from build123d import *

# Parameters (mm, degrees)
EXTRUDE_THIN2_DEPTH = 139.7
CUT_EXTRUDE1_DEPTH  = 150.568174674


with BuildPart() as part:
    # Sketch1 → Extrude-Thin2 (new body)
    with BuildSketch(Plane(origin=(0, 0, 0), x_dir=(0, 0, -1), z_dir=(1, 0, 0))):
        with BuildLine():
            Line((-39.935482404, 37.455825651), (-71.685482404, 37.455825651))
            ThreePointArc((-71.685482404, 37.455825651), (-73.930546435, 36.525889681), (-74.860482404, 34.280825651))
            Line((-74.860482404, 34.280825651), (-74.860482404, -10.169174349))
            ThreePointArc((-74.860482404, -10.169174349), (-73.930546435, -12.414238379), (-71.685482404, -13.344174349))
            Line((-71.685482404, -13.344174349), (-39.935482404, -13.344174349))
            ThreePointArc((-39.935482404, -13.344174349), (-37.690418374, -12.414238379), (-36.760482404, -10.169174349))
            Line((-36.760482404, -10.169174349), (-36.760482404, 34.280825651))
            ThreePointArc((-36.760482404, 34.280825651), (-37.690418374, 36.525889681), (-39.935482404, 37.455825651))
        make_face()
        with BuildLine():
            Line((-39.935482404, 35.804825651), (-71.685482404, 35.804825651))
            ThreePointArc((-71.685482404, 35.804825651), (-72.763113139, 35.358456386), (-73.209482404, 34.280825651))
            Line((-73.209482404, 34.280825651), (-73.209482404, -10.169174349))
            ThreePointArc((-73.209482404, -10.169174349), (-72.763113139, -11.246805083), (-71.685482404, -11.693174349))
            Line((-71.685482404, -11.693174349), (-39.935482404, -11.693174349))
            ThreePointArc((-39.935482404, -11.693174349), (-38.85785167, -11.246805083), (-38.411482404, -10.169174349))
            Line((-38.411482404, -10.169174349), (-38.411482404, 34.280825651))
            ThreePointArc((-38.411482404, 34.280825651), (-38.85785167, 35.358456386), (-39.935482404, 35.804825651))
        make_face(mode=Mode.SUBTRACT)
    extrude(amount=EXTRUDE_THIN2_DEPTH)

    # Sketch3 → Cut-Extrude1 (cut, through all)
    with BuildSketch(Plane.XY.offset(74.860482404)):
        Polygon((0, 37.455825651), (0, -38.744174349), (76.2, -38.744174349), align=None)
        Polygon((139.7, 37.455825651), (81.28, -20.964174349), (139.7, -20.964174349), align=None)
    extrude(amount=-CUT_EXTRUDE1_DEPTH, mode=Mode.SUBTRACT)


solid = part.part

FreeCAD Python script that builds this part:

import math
import FreeCAD as App
import Part
import Sketcher
from FreeCAD import Vector
Q = App.Units.Quantity


def add_polygon(sketch, points):
    """Adds a closed chain of lines whose ends are joined by coincident constraints."""
    first, n = sketch.GeometryCount, len(points)
    for a, b in zip(points, points[1:] + points[:1]):
        sketch.addGeometry(Part.LineSegment(App.Vector(*a, 0), App.Vector(*b, 0)), False)
    for i in range(n):
        sketch.addConstraint(Sketcher.Constraint("Coincident", first + i, 2, first + (i + 1) % n, 1))

doc = App.newDocument("Part")
params = doc.addObject("Spreadsheet::Sheet", "Params")
for row, (alias, value) in enumerate([
    ("sketch1_radius", "0.06 in"),
    ("sketch1_radius2", "0.125 in"),
    ("sketch1_width", "1.75 in"),
    ("sketch1_height", "1.25 in"),
    ("pad1_length", "5.5 in"),
    ("sketch2_width", "3 in"),
    ("sketch2_width2", "2.3 in"),
], start=1):
    params.set(f"A{row}", alias)
    params.set(f"B{row}", "=" + value)
    params.setAlias(f"B{row}", alias)

body = doc.addObject("PartDesign::Body", "Body")

# Sketch on YZ plane
sketch1 = body.newObject("Sketcher::SketchObject", "Sketch")
sketch1.AttachmentSupport = (doc.getObject("YZ_Plane"), [""])
sketch1.MapMode = "FlatFace"
sketch1.addGeometry([
    Part.LineSegment(Vector(37.5, 39.9, 0), Vector(37.5, 71.7, 0)),  # 0
    Part.ArcOfCircle(Part.Circle(Vector(34.3, 71.7, 0), Vector(0, 0, 1), 3.2), math.radians(0), math.radians(90)),  # 1
    Part.LineSegment(Vector(34.3, 74.9, 0), Vector(-10.2, 74.9, 0)),  # 2
    Part.ArcOfCircle(Part.Circle(Vector(-10.2, 71.7, 0), Vector(0, 0, 1), 3.2), math.radians(90), math.radians(180)),  # 3
    Part.LineSegment(Vector(-13.3, 71.7, 0), Vector(-13.3, 39.9, 0)),  # 4
    Part.ArcOfCircle(Part.Circle(Vector(-10.2, 39.9, 0), Vector(0, 0, 1), 3.2), math.radians(-180), math.radians(-90)),  # 5
    Part.LineSegment(Vector(-10.2, 36.8, 0), Vector(34.3, 36.8, 0)),  # 6
    Part.ArcOfCircle(Part.Circle(Vector(34.3, 39.9, 0), Vector(0, 0, 1), 3.2), math.radians(-90), math.radians(0)),  # 7
    Part.LineSegment(Vector(35.8, 71.7, 0), Vector(35.8, 39.9, 0)),  # 8
    Part.ArcOfCircle(Part.Circle(Vector(34.3, 39.9, 0), Vector(0, 0, 1), 1.5), math.radians(-90), math.radians(0)),  # 9
    Part.LineSegment(Vector(34.3, 38.4, 0), Vector(-10.2, 38.4, 0)),  # 10
    Part.ArcOfCircle(Part.Circle(Vector(-10.2, 39.9, 0), Vector(0, 0, 1), 1.5), math.radians(-180), math.radians(-90)),  # 11
    Part.LineSegment(Vector(-11.7, 39.9, 0), Vector(-11.7, 71.7, 0)),  # 12
    Part.ArcOfCircle(Part.Circle(Vector(-10.2, 71.7, 0), Vector(0, 0, 1), 1.5), math.radians(90), math.radians(180)),  # 13
    Part.LineSegment(Vector(-10.2, 73.2, 0), Vector(34.3, 73.2, 0)),  # 14
    Part.ArcOfCircle(Part.Circle(Vector(34.3, 71.7, 0), Vector(0, 0, 1), 1.5), math.radians(0), math.radians(90)),  # 15
], False)
sketch1.addConstraint([
    Sketcher.Constraint("Tangent", 0, 2, 1, 1),
    Sketcher.Constraint("Tangent", 1, 2, 2, 1),
    Sketcher.Constraint("Tangent", 2, 2, 3, 1),
    Sketcher.Constraint("Tangent", 3, 2, 4, 1),
    Sketcher.Constraint("Tangent", 4, 2, 5, 1),
    Sketcher.Constraint("Tangent", 5, 2, 6, 1),
    Sketcher.Constraint("Tangent", 6, 2, 7, 1),
    Sketcher.Constraint("Tangent", 7, 2, 0, 1),
    Sketcher.Constraint("Tangent", 8, 2, 9, 2),
    Sketcher.Constraint("Tangent", 9, 1, 10, 1),
    Sketcher.Constraint("Tangent", 10, 2, 11, 2),
    Sketcher.Constraint("Tangent", 11, 1, 12, 1),
    Sketcher.Constraint("Tangent", 12, 2, 13, 2),
    Sketcher.Constraint("Tangent", 13, 1, 14, 1),
    Sketcher.Constraint("Tangent", 14, 2, 15, 2),
    Sketcher.Constraint("Tangent", 15, 1, 8, 1),
    Sketcher.Constraint("Vertical", 0),
    Sketcher.Constraint("Horizontal", 2),
    Sketcher.Constraint("Vertical", 4),
    Sketcher.Constraint("Horizontal", 6),
    Sketcher.Constraint("Vertical", 8),
    Sketcher.Constraint("Horizontal", 10),
    Sketcher.Constraint("Vertical", 12),
    Sketcher.Constraint("Horizontal", 14),
    Sketcher.Constraint("Coincident", 9, 3, 7, 3),
    Sketcher.Constraint("Coincident", 11, 3, 5, 3),
    Sketcher.Constraint("Coincident", 13, 3, 3, 3),
    Sketcher.Constraint("Equal", 1, 3),
    Sketcher.Constraint("Equal", 3, 5),
    Sketcher.Constraint("Equal", 5, 7),
    Sketcher.Constraint("Equal", 13, 15),
    Sketcher.Constraint("Radius", 9, Q("0.06 in")),
    Sketcher.Constraint("Radius", 1, Q("0.125 in")),
    Sketcher.Constraint("DistanceX", 2, 2, 2, 1, Q("1.75 in")),
    Sketcher.Constraint("DistanceY", 0, 1, 0, 2, Q("1.25 in")),
    Sketcher.Constraint("DistanceX", -1, 1, 1, 3, 34.280826),
    Sketcher.Constraint("DistanceY", -1, 1, 1, 3, 71.685482),
])
sketch1.setExpression("Constraints[31]", "Params.sketch1_radius")
sketch1.setExpression("Constraints[32]", "Params.sketch1_radius2")
sketch1.setExpression("Constraints[33]", "Params.sketch1_width")
sketch1.setExpression("Constraints[34]", "Params.sketch1_height")
pad1 = body.newObject("PartDesign::Pad", "Pad")
pad1.Profile = sketch1
pad1.setExpression("Length", "Params.pad1_length")

# Sketch on XY plane
sketch2 = body.newObject("Sketcher::SketchObject", "Sketch001")
sketch2.AttachmentSupport = (doc.getObject("XY_Plane"), [""])
sketch2.MapMode = "FlatFace"
sketch2.AttachmentOffset = App.Placement(Vector(0, 0, 74.860482), App.Rotation())
add_polygon(sketch2, [(0, 37), (0, -39), (76, -39)])  # lines 0-2
add_polygon(sketch2, [(140, 37), (81, -21), (140, -21)])  # lines 3-5
sketch2.addConstraint([
    Sketcher.Constraint("Vertical", 0),
    Sketcher.Constraint("Horizontal", 1),
    Sketcher.Constraint("Horizontal", 4),
    Sketcher.Constraint("Vertical", 5),
    Sketcher.Constraint("PointOnObject", 0, 2, -2),
    Sketcher.Constraint("Perpendicular", 2, 3),
    Sketcher.Constraint("Horizontal", 2, 2, 5, 2),
    Sketcher.Constraint("Equal", 1, 0),
    Sketcher.Constraint("DistanceX", 1, 1, 1, 2, Q("3 in")),
    Sketcher.Constraint("DistanceX", 4, 1, 4, 2, Q("2.3 in")),
    Sketcher.Constraint("DistanceX", -1, 1, 3, 2, Q("3.2 in")),
    Sketcher.Constraint("DistanceY", 0, 2, -1, 1, 38.744174),
])
sketch2.setExpression("Constraints[14]", "Params.sketch2_width")
sketch2.setExpression("Constraints[15]", "Params.sketch2_width2")
pocket1 = body.newObject("PartDesign::Pocket", "Pocket")
pocket1.Profile = sketch2
pocket1.Type = "ThroughAll"

doc.recompute()
